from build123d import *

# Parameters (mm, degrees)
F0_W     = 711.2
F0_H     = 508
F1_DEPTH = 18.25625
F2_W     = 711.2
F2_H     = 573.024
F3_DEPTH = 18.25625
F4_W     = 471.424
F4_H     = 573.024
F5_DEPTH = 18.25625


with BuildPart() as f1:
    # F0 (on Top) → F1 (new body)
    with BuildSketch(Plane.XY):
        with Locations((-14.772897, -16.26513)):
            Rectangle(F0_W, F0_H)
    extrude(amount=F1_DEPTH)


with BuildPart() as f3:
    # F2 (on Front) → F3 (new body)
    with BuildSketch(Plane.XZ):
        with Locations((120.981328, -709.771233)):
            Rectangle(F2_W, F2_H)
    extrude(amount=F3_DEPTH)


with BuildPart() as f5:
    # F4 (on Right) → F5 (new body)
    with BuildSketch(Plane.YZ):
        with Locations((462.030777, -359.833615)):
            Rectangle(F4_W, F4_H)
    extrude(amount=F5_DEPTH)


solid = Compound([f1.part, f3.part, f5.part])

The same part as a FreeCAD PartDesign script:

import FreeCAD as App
import Part
import Sketcher
from FreeCAD import Vector
Q = App.Units.Quantity

doc = App.newDocument("Part")
params = doc.addObject("Spreadsheet::Sheet", "Params")
for row, (alias, value) in enumerate([
    ("sketch1_width", "28 in"),
    ("sketch1_height", "20 in"),
    ("pad1_length", "0.71875 in"),
    ("sketch2_width", "28 in"),
    ("sketch2_height", "22.56 in"),
    ("pad2_length", "0.71875 in"),
    ("sketch3_width", "18.56 in"),
    ("sketch3_height", "22.56 in"),
    ("pad3_length", "0.71875 in"),
], start=1):
    params.set(f"A{row}", alias)
    params.set(f"B{row}", "=" + value)
    params.setAlias(f"B{row}", alias)

body = doc.addObject("PartDesign::Body", "Body")

# Sketch on XY plane
sketch1 = doc.addObject("Sketcher::SketchObject", "Sketch")
body.addObject(sketch1)
sketch1.AttachmentSupport = (doc.XY_Plane, [""])
sketch1.MapMode = "FlatFace"
sketch1.addGeometry(Part.LineSegment(Vector(-370.372897, 237.73487, 0), Vector(-370.372897, -270.26513, 0)), False)
sketch1.addGeometry(Part.LineSegment(Vector(-370.372897, -270.26513, 0), Vector(340.827103, -270.26513, 0)), False)
sketch1.addGeometry(Part.LineSegment(Vector(340.827103, -270.26513, 0), Vector(340.827103, 237.73487, 0)), False)
sketch1.addGeometry(Part.LineSegment(Vector(340.827103, 237.73487, 0), Vector(-370.372897, 237.73487, 0)), False)
sketch1.addConstraint(Sketcher.Constraint("Coincident", 0, 2, 1, 1))
sketch1.addConstraint(Sketcher.Constraint("Coincident", 1, 2, 2, 1))
sketch1.addConstraint(Sketcher.Constraint("Coincident", 2, 2, 3, 1))
sketch1.addConstraint(Sketcher.Constraint("Coincident", 3, 2, 0, 1))
sketch1.addConstraint(Sketcher.Constraint("Vertical", 0))
sketch1.addConstraint(Sketcher.Constraint("Horizontal", 1))
sketch1.addConstraint(Sketcher.Constraint("Vertical", 2))
sketch1.addConstraint(Sketcher.Constraint("Horizontal", 3))
sketch1.addConstraint(Sketcher.Constraint("DistanceX", 1, 1, 1, 2, Q("28 in")))
sketch1.addConstraint(Sketcher.Constraint("DistanceY", 0, 2, 0, 1, Q("20 in")))
sketch1.addConstraint(Sketcher.Constraint("DistanceY", 0, 2, -1, 1, 270.26513))
sketch1.addConstraint(Sketcher.Constraint("DistanceX", 0, 2, -1, 1, 370.372897))
sketch1.setExpression("Constraints[8]", "Params.sketch1_width")
sketch1.setExpression("Constraints[9]", "Params.sketch1_height")
pad1 = doc.addObject("PartDesign::Pad", "Pad")
body.addObject(pad1)
pad1.Profile = sketch1
pad1.setExpression("Length", "Params.pad1_length")
body2 = doc.addObject("PartDesign::Body", "Body001")

# Sketch on XZ plane
sketch2 = doc.addObject("Sketcher::SketchObject", "Sketch001")
body2.addObject(sketch2)
sketch2.AttachmentSupport = (doc.getObject("XZ_Plane001"), [""])
sketch2.MapMode = "FlatFace"
sketch2.addGeometry(Part.LineSegment(Vector(-234.618672, -423.259233, 0), Vector(-234.618672, -996.283233, 0)), False)
sketch2.addGeometry(Part.LineSegment(Vector(-234.618672, -996.283233, 0), Vector(476.581328, -996.283233, 0)), False)
sketch2.addGeometry(Part.LineSegment(Vector(476.581328, -996.283233, 0), Vector(476.581328, -423.259233, 0)), False)
sketch2.addGeometry(Part.LineSegment(Vector(476.581328, -423.259233, 0), Vector(-234.618672, -423.259233, 0)), False)
sketch2.addConstraint(Sketcher.Constraint("Coincident", 0, 2, 1, 1))
sketch2.addConstraint(Sketcher.Constraint("Coincident", 1, 2, 2, 1))
sketch2.addConstraint(Sketcher.Constraint("Coincident", 2, 2, 3, 1))
sketch2.addConstraint(Sketcher.Constraint("Coincident", 3, 2, 0, 1))
sketch2.addConstraint(Sketcher.Constraint("Vertical", 0))
sketch2.addConstraint(Sketcher.Constraint("Horizontal", 1))
sketch2.addConstraint(Sketcher.Constraint("Vertical", 2))
sketch2.addConstraint(Sketcher.Constraint("Horizontal", 3))
sketch2.addConstraint(Sketcher.Constraint("DistanceX", 1, 1, 1, 2, Q("28 in")))
sketch2.addConstraint(Sketcher.Constraint("DistanceY", 0, 2, 0, 1, Q("22.56 in")))
sketch2.addConstraint(Sketcher.Constraint("DistanceX", 0, 2, -1, 1, 234.618672))
sketch2.addConstraint(Sketcher.Constraint("DistanceY", 0, 2, -1, 1, 996.283233))
sketch2.setExpression("Constraints[8]", "Params.sketch2_width")
sketch2.setExpression("Constraints[9]", "Params.sketch2_height")
pad2 = doc.addObject("PartDesign::Pad", "Pad001")
body2.addObject(pad2)
pad2.Profile = sketch2
pad2.setExpression("Length", "Params.pad2_length")
body3 = doc.addObject("PartDesign::Body", "Body002")

# Sketch on YZ plane
sketch3 = doc.addObject("Sketcher::SketchObject", "Sketch002")
body3.addObject(sketch3)
sketch3.AttachmentSupport = (doc.getObject("YZ_Plane002"), [""])
sketch3.MapMode = "FlatFace"
sketch3.addGeometry(Part.LineSegment(Vector(226.318777, -73.321615, 0), Vector(226.318777, -646.345615, 0)), False)
sketch3.addGeometry(Part.LineSegment(Vector(226.318777, -646.345615, 0), Vector(697.742777, -646.345615, 0)), False)
sketch3.addGeometry(Part.LineSegment(Vector(697.742777, -646.345615, 0), Vector(697.742777, -73.321615, 0)), False)
sketch3.addGeometry(Part.LineSegment(Vector(697.742777, -73.321615, 0), Vector(226.318777, -73.321615, 0)), False)
sketch3.addConstraint(Sketcher.Constraint("Coincident", 0, 2, 1, 1))
sketch3.addConstraint(Sketcher.Constraint("Coincident", 1, 2, 2, 1))
sketch3.addConstraint(Sketcher.Constraint("Coincident", 2, 2, 3, 1))
sketch3.addConstraint(Sketcher.Constraint("Coincident", 3, 2, 0, 1))
sketch3.addConstraint(Sketcher.Constraint("Vertical", 0))
sketch3.addConstraint(Sketcher.Constraint("Horizontal", 1))
sketch3.addConstraint(Sketcher.Constraint("Vertical", 2))
sketch3.addConstraint(Sketcher.Constraint("Horizontal", 3))
sketch3.addConstraint(Sketcher.Constraint("DistanceX", 1, 1, 1, 2, Q("18.56 in")))
sketch3.addConstraint(Sketcher.Constraint("DistanceY", 0, 2, 0, 1, Q("22.56 in")))
sketch3.addConstraint(Sketcher.Constraint("DistanceX", -1, 1, 0, 2, 226.318777))
sketch3.addConstraint(Sketcher.Constraint("DistanceY", 0, 2, -1, 1, 646.345615))
sketch3.setExpression("Constraints[8]", "Params.sketch3_width")
sketch3.setExpression("Constraints[9]", "Params.sketch3_height")
pad3 = doc.addObject("PartDesign::Pad", "Pad002")
body3.addObject(pad3)
pad3.Profile = sketch3
pad3.setExpression("Length", "Params.pad3_length")

doc.recompute()
